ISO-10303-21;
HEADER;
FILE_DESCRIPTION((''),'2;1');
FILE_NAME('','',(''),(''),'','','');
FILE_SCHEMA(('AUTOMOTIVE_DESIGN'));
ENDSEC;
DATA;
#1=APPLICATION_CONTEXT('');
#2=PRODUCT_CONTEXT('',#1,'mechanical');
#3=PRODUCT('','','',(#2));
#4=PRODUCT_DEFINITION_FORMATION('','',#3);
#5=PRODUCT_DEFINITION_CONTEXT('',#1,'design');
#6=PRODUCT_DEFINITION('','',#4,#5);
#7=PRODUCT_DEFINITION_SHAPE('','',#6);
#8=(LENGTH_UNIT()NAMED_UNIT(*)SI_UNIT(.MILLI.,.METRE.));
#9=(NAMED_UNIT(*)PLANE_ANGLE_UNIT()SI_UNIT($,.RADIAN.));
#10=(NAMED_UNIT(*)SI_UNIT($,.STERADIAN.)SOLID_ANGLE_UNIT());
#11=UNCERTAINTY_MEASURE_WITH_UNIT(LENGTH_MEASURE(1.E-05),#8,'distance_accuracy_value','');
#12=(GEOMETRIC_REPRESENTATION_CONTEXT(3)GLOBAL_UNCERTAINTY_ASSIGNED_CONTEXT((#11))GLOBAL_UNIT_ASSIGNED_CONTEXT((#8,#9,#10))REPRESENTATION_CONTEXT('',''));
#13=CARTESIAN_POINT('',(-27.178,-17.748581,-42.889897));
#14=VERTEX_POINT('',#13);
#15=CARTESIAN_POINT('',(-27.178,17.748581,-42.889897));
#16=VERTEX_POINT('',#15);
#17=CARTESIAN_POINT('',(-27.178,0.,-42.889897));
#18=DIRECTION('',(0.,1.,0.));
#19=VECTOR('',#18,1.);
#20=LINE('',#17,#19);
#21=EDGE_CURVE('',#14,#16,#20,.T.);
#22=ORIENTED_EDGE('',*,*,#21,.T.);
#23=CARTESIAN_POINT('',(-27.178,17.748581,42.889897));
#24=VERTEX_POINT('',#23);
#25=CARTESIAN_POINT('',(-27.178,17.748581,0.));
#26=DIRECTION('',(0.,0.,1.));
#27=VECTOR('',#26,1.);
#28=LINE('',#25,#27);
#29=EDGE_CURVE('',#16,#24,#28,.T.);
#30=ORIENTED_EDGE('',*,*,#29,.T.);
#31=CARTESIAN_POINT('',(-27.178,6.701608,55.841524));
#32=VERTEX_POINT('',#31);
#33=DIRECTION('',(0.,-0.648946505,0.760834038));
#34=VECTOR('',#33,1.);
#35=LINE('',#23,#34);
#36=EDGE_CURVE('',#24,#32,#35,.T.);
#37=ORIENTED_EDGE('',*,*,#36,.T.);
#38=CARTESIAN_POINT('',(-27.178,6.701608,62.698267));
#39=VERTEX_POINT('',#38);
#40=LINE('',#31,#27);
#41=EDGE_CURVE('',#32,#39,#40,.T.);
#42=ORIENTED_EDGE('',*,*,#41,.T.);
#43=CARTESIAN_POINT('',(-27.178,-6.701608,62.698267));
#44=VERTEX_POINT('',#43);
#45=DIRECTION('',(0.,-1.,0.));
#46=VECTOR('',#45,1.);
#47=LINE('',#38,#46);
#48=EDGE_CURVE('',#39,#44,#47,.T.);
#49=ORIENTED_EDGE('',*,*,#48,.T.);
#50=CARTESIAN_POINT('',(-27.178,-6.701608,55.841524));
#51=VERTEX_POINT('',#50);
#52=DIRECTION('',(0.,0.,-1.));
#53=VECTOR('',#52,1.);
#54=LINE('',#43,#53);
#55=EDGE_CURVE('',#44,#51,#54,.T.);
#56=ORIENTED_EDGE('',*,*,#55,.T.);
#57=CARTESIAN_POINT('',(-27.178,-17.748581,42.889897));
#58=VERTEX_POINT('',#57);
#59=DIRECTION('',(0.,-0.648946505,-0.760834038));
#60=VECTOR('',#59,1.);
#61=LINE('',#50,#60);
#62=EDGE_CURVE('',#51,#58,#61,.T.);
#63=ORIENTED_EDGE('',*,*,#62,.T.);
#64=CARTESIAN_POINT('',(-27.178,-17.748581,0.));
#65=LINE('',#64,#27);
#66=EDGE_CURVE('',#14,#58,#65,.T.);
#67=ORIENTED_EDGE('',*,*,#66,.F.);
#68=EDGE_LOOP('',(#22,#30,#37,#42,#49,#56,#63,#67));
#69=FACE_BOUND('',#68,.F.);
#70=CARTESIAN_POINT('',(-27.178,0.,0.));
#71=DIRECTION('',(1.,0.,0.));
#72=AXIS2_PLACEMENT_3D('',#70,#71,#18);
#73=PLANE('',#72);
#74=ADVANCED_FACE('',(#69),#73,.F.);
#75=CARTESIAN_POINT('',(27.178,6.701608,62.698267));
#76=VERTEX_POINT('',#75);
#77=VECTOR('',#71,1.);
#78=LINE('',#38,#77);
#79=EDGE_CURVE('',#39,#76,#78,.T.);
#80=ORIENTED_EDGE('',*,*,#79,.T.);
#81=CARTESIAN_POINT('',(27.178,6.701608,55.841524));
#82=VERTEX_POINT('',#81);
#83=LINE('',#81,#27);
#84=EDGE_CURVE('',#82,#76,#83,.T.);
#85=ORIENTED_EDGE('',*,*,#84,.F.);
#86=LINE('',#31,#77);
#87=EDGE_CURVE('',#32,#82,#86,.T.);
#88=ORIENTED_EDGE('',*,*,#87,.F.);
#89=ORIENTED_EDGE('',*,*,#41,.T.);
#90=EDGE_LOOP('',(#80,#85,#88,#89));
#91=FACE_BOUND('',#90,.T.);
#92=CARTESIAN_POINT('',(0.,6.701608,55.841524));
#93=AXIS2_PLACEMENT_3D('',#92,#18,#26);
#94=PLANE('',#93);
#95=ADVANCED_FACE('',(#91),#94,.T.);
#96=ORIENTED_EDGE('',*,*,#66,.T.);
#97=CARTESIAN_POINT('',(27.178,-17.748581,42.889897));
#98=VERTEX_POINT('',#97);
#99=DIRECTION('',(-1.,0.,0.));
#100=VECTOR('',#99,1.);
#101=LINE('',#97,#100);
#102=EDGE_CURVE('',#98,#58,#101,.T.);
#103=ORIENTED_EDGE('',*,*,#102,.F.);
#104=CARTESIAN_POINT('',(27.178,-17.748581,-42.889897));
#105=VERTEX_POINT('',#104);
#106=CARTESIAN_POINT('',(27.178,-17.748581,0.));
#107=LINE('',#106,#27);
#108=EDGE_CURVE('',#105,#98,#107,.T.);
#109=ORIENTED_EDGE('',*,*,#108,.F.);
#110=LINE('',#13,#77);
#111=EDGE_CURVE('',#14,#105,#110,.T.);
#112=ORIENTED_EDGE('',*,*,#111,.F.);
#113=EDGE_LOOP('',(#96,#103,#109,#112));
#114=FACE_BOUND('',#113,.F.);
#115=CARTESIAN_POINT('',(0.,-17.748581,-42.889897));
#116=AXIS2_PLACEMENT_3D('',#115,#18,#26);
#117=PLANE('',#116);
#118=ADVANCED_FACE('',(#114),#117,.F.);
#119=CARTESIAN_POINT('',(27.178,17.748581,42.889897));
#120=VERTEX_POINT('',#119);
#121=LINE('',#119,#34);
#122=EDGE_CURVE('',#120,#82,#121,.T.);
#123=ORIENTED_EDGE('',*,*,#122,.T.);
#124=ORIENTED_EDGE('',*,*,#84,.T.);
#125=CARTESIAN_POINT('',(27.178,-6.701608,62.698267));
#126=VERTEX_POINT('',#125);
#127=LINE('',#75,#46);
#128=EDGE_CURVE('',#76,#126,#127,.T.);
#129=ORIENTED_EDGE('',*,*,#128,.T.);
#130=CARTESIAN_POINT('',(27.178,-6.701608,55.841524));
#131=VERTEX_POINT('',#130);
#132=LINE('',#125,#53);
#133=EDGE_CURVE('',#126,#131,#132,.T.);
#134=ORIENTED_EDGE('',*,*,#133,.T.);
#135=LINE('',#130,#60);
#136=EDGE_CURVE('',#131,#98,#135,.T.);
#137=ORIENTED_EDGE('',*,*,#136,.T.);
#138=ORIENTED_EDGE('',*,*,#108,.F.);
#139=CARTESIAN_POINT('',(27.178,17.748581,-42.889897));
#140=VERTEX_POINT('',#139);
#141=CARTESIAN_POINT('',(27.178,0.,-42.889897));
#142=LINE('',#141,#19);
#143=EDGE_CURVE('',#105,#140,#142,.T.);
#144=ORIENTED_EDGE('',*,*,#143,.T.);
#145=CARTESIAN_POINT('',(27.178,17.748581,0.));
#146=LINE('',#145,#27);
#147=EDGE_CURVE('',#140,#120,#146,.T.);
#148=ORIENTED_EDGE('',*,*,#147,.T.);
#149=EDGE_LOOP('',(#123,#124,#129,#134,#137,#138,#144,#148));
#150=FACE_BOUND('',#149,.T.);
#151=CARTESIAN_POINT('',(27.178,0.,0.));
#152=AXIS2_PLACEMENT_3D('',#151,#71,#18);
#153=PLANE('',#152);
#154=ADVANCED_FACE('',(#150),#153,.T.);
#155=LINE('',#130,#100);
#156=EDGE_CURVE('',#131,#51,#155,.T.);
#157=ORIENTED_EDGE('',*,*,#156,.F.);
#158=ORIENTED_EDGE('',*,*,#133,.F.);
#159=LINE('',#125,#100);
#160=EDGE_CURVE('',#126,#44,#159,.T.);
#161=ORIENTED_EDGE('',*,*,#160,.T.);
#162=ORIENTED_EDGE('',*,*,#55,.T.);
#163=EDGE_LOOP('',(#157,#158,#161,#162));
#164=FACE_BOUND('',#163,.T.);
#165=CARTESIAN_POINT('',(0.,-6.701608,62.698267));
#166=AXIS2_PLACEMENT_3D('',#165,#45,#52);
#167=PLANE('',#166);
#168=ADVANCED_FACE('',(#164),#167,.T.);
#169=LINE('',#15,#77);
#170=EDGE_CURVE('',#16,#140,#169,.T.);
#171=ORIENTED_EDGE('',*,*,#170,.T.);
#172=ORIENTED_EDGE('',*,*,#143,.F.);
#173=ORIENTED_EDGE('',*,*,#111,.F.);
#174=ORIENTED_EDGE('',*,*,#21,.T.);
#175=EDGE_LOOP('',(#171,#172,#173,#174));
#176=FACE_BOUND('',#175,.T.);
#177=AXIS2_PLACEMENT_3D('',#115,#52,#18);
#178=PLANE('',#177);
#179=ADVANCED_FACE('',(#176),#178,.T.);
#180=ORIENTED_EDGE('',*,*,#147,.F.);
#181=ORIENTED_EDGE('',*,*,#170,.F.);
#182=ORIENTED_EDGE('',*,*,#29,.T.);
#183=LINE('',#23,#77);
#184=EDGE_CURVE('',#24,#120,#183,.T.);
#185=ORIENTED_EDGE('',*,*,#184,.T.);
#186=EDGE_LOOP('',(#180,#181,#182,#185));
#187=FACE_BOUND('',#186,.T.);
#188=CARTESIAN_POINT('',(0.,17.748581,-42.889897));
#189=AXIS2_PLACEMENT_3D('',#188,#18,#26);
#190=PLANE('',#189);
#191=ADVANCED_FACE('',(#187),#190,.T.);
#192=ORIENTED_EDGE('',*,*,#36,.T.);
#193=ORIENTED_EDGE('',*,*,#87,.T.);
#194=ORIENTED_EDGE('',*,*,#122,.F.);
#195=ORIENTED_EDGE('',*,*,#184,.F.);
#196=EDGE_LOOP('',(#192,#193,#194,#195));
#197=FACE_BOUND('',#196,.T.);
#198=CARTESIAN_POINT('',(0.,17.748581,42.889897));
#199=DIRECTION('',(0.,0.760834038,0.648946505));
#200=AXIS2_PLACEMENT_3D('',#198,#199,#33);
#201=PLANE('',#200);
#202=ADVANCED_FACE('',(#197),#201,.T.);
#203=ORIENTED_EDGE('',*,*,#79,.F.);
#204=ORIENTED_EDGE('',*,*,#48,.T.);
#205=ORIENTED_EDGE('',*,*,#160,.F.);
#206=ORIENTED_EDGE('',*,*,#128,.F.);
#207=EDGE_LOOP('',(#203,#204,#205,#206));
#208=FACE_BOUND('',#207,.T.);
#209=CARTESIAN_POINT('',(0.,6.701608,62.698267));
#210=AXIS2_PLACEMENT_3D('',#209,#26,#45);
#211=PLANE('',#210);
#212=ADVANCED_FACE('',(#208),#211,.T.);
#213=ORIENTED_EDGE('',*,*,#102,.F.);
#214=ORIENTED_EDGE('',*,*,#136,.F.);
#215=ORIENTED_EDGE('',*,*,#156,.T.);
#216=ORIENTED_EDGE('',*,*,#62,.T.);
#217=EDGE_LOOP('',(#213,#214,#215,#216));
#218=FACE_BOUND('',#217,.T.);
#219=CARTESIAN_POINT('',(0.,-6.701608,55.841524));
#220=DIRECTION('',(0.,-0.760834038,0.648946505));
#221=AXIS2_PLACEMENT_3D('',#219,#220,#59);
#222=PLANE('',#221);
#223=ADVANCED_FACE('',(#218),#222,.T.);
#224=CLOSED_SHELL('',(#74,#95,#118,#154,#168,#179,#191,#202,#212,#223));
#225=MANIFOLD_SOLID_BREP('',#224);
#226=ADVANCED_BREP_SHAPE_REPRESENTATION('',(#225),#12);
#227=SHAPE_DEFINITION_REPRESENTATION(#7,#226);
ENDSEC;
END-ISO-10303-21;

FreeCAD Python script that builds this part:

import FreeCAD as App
import Part
import Sketcher

V = App.Vector
Q = App.Units.Quantity


def add_polygon(sketch, points):
    """Adds a closed chain of lines whose ends are joined by coincident constraints."""
    first, n = sketch.GeometryCount, len(points)
    for a, b in zip(points, points[1:] + points[:1]):
        sketch.addGeometry(Part.LineSegment(App.Vector(*a, 0), App.Vector(*b, 0)), False)
    for i in range(n):
        sketch.addConstraint(Sketcher.Constraint("Coincident", first + i, 2, first + (i + 1) % n, 1))

doc = App.newDocument("Part")
body = doc.addObject("PartDesign::Body", "Body")

sketch1 = body.newObject("Sketcher::SketchObject", "Sketch")
sketch1.AttachmentSupport = (doc.getObject("YZ_Plane"), [""])
sketch1.MapMode = "FlatFace"
add_polygon(sketch1, [(-18, 43), (-18, -43), (18, -43), (18, 43), (7, 56), (7, 63), (-7, 63), (-7, 56)])
sketch1.addConstraint([
    Sketcher.Constraint("Vertical", 0),
    Sketcher.Constraint("Horizontal", 1),
    Sketcher.Constraint("Vertical", 2),
    Sketcher.Constraint("Vertical", 4),
    Sketcher.Constraint("Horizontal", 5),
    Sketcher.Constraint("Vertical", 6),
    Sketcher.Constraint("Symmetric", 0, 2, 2, 2, -1, 1),
    Sketcher.Constraint("Symmetric", 3, 2, 6, 2, -2),
    Sketcher.Constraint("Horizontal", 2, 2, 7, 2),
    Sketcher.Constraint("DistanceX", 1, 1, 1, 2, Q("35.497162 mm")),
    Sketcher.Constraint("DistanceX", 5, 2, 5, 1, Q("13.403216 mm")),
    Sketcher.Constraint("DistanceY", 0, 2, 0, 1, Q("85.779794 mm")),
    Sketcher.Constraint("DistanceY", 4, 1, 4, 2, Q("6.856743 mm")),
    Sketcher.Constraint("DistanceY", 1, 2, 3, 2, Q("98.731421 mm")),
])
pad1 = body.newObject("PartDesign::Pad", "Pad")
pad1.Profile = sketch1
pad1.Length = Q("2.14 in")
pad1.Midplane = True

doc.recompute()
